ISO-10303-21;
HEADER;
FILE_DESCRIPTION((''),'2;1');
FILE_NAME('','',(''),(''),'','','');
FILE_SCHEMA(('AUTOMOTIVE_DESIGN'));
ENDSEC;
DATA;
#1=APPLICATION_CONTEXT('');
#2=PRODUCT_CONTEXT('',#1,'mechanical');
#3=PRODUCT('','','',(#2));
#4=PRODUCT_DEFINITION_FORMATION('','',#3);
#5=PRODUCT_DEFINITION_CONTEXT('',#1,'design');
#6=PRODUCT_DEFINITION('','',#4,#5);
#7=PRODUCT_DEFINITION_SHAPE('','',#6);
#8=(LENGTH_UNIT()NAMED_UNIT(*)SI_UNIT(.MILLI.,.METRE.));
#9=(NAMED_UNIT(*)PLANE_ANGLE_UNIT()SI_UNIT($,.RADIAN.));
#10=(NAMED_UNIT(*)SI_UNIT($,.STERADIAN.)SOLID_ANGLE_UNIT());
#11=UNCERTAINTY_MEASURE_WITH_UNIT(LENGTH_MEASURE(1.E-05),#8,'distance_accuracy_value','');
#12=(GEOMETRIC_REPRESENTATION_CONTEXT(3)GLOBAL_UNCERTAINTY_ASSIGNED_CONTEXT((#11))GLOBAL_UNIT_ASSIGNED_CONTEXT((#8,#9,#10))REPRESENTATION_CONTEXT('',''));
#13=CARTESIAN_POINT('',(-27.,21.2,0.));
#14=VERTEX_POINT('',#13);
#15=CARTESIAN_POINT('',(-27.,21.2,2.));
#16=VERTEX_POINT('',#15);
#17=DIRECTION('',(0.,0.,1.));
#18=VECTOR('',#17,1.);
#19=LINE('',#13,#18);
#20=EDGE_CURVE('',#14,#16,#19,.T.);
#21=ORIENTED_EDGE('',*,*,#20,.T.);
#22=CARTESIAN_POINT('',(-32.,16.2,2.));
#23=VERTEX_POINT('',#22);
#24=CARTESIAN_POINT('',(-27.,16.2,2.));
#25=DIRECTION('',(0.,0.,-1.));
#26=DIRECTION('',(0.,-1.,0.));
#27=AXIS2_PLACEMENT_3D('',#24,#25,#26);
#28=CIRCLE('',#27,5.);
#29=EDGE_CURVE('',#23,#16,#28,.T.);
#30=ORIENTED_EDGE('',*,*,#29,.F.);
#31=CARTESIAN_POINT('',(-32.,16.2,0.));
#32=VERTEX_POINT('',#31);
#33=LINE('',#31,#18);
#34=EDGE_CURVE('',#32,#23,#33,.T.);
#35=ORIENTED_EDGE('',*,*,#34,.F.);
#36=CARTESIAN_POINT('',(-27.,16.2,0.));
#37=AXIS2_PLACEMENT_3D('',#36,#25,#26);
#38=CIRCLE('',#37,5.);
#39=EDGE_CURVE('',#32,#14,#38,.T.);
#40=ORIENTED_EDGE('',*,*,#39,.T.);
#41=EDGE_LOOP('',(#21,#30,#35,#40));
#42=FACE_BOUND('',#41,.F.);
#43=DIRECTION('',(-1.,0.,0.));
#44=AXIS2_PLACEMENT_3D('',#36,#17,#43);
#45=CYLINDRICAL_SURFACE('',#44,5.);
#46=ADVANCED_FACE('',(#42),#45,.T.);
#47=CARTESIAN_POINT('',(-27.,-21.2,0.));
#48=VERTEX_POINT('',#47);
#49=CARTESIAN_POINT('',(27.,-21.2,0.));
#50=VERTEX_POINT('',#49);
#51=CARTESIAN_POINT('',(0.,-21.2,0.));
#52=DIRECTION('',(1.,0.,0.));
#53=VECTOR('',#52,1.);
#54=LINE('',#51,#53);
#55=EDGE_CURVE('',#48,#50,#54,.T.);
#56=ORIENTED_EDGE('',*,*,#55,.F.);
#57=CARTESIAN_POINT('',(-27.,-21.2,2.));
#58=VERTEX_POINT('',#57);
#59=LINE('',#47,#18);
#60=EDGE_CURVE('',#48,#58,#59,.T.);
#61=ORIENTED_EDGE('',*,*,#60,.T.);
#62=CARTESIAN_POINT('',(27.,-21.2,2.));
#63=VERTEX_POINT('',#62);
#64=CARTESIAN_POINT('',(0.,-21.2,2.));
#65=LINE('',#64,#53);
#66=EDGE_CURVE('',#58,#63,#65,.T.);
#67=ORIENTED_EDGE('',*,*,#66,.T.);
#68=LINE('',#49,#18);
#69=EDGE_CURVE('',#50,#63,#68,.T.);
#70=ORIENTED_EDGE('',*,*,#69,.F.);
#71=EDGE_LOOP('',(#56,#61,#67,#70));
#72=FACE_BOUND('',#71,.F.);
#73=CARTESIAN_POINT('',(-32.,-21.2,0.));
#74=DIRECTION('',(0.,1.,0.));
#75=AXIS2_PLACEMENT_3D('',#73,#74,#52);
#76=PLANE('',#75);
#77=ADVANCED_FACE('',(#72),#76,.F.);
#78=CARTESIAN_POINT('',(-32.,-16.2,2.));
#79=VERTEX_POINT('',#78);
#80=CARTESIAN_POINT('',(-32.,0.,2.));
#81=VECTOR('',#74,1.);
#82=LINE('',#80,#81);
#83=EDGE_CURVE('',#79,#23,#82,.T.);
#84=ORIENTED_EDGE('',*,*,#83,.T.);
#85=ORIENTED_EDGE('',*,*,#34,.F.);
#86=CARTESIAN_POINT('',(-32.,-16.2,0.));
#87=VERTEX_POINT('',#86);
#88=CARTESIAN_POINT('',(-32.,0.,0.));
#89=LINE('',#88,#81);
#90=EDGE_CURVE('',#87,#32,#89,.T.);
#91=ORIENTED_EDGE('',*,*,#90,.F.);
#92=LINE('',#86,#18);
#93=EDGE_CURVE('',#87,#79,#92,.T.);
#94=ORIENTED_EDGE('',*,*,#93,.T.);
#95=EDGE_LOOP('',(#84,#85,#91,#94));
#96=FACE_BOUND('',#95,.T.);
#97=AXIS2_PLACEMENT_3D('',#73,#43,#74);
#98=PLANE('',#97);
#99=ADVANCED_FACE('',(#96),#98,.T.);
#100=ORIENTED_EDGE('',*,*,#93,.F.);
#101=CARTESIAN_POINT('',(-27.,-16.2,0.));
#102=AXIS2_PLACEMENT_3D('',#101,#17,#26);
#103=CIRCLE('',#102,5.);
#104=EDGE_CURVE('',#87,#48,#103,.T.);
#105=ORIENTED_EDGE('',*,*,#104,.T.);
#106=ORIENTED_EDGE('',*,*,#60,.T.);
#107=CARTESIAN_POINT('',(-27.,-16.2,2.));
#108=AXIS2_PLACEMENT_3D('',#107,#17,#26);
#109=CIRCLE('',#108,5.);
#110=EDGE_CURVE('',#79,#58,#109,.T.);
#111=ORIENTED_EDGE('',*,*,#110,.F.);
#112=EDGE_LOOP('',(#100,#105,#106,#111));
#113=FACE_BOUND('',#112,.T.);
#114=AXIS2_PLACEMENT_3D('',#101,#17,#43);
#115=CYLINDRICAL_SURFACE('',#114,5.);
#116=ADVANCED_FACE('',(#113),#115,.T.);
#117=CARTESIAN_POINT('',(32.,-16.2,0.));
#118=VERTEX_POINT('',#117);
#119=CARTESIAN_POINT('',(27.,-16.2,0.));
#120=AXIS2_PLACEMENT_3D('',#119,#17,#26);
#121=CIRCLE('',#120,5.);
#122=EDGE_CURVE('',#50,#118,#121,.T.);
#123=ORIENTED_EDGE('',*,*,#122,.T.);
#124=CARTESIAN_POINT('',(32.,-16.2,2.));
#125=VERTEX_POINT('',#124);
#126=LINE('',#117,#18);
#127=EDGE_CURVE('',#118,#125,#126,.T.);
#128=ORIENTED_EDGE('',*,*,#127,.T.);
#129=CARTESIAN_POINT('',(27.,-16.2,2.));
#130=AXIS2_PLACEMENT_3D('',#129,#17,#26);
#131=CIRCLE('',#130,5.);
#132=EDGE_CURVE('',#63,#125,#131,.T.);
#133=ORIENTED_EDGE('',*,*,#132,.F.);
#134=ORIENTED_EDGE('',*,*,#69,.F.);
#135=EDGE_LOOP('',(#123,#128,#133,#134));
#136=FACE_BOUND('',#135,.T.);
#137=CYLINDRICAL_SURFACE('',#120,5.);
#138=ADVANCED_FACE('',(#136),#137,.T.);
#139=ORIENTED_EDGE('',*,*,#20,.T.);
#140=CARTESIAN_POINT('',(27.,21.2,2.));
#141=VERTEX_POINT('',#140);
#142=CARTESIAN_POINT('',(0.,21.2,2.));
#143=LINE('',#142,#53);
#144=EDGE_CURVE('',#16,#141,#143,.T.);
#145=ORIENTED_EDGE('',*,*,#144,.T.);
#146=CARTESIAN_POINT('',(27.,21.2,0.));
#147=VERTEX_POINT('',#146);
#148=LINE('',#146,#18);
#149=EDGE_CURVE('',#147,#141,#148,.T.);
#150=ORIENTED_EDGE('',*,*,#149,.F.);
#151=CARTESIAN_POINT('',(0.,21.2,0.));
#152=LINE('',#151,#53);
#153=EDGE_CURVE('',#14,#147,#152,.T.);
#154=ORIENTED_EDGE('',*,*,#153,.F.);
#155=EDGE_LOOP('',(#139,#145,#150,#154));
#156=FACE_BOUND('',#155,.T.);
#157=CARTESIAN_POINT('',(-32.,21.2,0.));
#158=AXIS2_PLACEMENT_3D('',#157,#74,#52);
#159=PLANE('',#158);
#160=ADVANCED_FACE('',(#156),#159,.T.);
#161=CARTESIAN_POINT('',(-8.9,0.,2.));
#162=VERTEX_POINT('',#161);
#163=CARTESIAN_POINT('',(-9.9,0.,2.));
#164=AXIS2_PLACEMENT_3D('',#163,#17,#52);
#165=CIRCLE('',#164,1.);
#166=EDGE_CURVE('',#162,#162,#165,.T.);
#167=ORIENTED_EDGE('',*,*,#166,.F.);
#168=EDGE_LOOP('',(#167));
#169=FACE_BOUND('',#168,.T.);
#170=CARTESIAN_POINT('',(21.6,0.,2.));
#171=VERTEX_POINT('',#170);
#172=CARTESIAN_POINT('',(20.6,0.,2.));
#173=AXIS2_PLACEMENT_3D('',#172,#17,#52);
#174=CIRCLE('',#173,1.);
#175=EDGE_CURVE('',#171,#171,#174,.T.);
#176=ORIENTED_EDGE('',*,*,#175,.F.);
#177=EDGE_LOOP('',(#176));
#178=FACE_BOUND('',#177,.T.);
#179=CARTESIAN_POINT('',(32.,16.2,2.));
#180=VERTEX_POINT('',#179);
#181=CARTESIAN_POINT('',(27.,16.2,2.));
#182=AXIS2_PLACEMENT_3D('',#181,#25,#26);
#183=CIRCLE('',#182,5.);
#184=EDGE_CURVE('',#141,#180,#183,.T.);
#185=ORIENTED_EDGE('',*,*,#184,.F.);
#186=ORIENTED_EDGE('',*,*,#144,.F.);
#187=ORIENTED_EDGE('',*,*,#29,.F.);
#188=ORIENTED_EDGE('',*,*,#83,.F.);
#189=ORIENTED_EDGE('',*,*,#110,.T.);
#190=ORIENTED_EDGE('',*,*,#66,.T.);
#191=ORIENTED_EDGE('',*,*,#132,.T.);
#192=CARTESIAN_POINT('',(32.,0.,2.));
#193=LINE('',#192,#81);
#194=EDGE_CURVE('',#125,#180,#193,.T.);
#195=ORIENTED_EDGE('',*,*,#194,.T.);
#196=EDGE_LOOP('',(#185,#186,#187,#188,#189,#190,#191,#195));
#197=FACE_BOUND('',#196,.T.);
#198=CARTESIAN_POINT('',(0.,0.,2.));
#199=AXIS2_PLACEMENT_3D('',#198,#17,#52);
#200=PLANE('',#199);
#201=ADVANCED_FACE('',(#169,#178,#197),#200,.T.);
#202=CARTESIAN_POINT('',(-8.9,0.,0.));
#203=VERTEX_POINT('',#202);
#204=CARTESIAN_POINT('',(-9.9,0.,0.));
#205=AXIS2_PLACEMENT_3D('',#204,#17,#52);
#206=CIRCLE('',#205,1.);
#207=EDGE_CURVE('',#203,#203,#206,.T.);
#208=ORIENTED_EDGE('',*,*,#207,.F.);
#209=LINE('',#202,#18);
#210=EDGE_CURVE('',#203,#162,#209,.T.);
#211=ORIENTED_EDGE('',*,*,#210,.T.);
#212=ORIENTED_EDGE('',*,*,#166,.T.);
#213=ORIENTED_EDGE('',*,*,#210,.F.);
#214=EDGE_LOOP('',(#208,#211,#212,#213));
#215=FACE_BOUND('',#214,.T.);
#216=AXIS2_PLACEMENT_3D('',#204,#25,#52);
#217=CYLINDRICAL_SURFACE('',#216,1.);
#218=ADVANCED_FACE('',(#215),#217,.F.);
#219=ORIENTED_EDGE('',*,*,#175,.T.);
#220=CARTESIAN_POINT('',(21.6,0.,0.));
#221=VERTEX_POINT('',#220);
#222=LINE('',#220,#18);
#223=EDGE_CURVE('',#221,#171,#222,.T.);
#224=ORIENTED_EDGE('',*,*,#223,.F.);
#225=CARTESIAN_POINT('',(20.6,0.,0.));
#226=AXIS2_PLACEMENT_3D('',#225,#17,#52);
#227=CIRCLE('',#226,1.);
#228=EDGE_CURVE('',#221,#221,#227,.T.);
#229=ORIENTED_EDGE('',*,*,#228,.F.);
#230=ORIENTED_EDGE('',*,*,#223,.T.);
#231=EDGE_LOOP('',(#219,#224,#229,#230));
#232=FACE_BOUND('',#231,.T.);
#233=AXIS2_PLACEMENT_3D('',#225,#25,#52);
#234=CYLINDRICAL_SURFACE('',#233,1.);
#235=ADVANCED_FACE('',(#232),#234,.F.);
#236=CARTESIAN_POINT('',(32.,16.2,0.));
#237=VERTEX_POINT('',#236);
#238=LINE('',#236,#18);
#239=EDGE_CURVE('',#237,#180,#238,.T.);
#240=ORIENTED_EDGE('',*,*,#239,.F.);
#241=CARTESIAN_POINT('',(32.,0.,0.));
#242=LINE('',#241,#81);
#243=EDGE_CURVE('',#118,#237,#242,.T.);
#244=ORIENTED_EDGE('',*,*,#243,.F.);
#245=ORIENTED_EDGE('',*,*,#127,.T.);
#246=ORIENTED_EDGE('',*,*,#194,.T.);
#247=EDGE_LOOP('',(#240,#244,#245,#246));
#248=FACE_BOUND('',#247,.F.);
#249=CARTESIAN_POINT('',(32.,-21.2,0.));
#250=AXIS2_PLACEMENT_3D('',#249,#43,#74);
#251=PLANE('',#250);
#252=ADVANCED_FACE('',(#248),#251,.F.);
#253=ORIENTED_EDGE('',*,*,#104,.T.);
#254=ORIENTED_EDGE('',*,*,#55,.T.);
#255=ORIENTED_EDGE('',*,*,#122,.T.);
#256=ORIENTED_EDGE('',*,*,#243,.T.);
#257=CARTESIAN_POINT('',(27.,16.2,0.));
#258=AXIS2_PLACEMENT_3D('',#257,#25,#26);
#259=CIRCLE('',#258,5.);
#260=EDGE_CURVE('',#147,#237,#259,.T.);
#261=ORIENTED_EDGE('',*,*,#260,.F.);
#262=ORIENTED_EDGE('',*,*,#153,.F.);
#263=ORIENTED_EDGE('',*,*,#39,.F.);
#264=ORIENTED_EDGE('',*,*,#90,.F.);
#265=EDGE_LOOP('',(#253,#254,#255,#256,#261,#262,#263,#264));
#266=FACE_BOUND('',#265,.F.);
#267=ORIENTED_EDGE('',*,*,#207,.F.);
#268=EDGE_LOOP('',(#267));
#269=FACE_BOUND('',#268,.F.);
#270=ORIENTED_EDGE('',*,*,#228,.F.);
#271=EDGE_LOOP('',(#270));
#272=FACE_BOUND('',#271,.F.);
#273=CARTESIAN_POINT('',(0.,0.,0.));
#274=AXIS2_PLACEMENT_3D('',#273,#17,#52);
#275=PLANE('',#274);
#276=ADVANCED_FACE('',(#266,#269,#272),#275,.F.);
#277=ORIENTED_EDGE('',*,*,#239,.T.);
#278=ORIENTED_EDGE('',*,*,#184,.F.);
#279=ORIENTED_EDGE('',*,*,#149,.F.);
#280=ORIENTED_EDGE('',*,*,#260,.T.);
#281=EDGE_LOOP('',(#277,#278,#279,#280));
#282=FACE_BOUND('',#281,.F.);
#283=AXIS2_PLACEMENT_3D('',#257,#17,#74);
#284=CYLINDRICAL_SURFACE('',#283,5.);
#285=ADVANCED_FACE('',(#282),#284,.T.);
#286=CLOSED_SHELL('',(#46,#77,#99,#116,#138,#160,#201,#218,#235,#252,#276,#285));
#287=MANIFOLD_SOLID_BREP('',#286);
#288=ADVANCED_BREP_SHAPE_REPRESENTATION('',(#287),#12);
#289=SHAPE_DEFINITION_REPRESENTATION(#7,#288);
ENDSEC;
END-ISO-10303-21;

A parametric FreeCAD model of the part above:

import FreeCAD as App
import Part
import Sketcher
Q = App.Units.Quantity


def edges_at(feature, points):
    """Names of the edges that pass closest to the given points."""
    edges = feature.Shape.Edges
    near = lambda p: min(range(len(edges)), key=lambda i: edges[i].distToShape(Part.Vertex(*p))[0])
    return sorted({f"Edge{near(p) + 1}" for p in points})


def add_polygon(sketch, points):
    """Adds a closed chain of lines whose ends are joined by coincident constraints."""
    first, n = sketch.GeometryCount, len(points)
    for a, b in zip(points, points[1:] + points[:1]):
        sketch.addGeometry(Part.LineSegment(App.Vector(*a, 0), App.Vector(*b, 0)), False)
    for i in range(n):
        sketch.addConstraint(Sketcher.Constraint("Coincident", first + i, 2, first + (i + 1) % n, 1))

doc = App.newDocument("Part")
body = doc.addObject("PartDesign::Body", "Body")

# Sketch on XY plane
sketch1 = body.newObject("Sketcher::SketchObject", "Sketch")
sketch1.AttachmentSupport = (doc.getObject("XY_Plane"), [""])
sketch1.MapMode = "FlatFace"
add_polygon(sketch1, [(-32, 21.2), (-32, -21.2), (32, -21.2), (32, 21.2)])  # lines 0-3
sketch1.addGeometry(Part.Circle(App.Vector(-9.9, 0, 0), App.Vector(0, 0, 1), 1), False)  # 4
sketch1.addGeometry(Part.Circle(App.Vector(20.6, 0, 0), App.Vector(0, 0, 1), 1), False)  # 5
sketch1.addConstraint([
    Sketcher.Constraint("Vertical", 0),
    Sketcher.Constraint("Horizontal", 1),
    Sketcher.Constraint("Vertical", 2),
    Sketcher.Constraint("Horizontal", 3),
    Sketcher.Constraint("Equal", 4, 5),
    Sketcher.Constraint("Symmetric", 0, 2, 2, 2, -1, 1),
    Sketcher.Constraint("PointOnObject", 4, 3, -1),
    Sketcher.Constraint("PointOnObject", 5, 3, -1),
    Sketcher.Constraint("Diameter", 4, Q("2 mm")),
    Sketcher.Constraint("DistanceX", 1, 1, 1, 2, Q("64 mm")),
    Sketcher.Constraint("DistanceY", 0, 2, 0, 1, Q("42.4 mm")),
    Sketcher.Constraint("DistanceX", 4, 3, -1, 1, Q("9.9 mm")),
    Sketcher.Constraint("DistanceX", -1, 1, 5, 3, Q("20.6 mm")),
])
pad1 = body.newObject("PartDesign::Pad", "Pad")
pad1.Profile = sketch1
pad1.Length = 2
doc.recompute()

fillet = body.newObject("PartDesign::Fillet", "Fillet")
fillet.Base = (pad1, edges_at(pad1, [
    (32, -21.2, 1),
    (32, 21.2, 1),
    (-32, 21.2, 1),
    (-32, -21.2, 1),
]))
fillet.Radius = 5

doc.recompute()
